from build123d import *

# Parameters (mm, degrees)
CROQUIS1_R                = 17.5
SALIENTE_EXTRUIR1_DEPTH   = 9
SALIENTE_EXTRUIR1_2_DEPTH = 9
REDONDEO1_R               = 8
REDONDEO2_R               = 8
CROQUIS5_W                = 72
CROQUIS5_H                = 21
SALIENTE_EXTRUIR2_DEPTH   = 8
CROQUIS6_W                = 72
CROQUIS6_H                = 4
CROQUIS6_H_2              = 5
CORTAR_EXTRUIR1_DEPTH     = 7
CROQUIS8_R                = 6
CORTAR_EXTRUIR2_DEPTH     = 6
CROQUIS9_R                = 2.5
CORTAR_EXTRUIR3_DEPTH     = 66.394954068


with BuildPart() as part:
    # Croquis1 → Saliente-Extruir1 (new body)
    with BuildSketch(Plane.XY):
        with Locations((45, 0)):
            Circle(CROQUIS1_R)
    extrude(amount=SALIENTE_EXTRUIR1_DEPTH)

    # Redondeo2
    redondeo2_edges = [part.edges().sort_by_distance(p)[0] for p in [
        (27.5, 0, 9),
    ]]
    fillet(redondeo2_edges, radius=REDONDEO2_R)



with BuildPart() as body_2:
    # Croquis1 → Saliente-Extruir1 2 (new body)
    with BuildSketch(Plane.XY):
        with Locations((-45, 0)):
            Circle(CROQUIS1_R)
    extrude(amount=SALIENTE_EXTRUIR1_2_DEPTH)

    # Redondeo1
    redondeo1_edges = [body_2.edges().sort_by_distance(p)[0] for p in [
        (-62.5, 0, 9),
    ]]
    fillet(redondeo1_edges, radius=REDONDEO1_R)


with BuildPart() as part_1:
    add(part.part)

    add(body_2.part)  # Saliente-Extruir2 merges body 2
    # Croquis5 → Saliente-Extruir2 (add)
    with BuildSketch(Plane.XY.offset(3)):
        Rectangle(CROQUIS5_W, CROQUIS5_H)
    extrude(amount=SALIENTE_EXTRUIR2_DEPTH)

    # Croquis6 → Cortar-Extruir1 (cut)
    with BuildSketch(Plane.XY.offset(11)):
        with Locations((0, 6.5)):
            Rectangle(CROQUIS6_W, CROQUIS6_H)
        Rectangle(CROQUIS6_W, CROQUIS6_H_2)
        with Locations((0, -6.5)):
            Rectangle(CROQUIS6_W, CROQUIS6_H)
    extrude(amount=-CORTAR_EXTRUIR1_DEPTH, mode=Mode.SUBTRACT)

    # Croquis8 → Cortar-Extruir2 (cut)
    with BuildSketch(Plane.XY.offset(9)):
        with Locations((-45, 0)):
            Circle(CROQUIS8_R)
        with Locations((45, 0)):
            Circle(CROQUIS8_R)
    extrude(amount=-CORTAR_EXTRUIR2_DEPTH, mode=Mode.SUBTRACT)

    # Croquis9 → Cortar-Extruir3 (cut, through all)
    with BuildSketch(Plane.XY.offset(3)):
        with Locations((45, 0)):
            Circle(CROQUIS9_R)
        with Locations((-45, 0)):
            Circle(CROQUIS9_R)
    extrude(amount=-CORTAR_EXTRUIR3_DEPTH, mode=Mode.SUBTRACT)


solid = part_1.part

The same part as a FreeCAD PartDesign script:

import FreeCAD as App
import Part
import Sketcher
from FreeCAD import Vector
Q = App.Units.Quantity


def edges_at(feature, points):
    """Names of the edges that pass closest to the given points."""
    edges = feature.Shape.Edges
    near = lambda p: min(range(len(edges)), key=lambda i: edges[i].distToShape(Part.Vertex(*p))[0])
    return sorted({f"Edge{near(p) + 1}" for p in points})

doc = App.newDocument("Part")
body = doc.addObject("PartDesign::Body", "Body")

sketch1 = doc.addObject("Sketcher::SketchObject", "Sketch")
body.addObject(sketch1)
sketch1.AttachmentSupport = (doc.XY_Plane, [""])
sketch1.MapMode = "FlatFace"
sketch1.addGeometry(Part.Circle(Vector(45, 0, 0), Vector(0, 0, 1), 18), False)
sketch1.addConstraint([
    Sketcher.Constraint("PointOnObject", 0, 3, -1),
    Sketcher.Constraint("Diameter", 0, Q("35 mm")),
    Sketcher.Constraint("DistanceX", -1, 1, 0, 3, Q("45 mm")),
])
pad1 = doc.addObject("PartDesign::Pad", "Pad")
body.addObject(pad1)
pad1.Profile = sketch1
pad1.Length = 9
doc.recompute()

fillet = doc.addObject("PartDesign::Fillet", "Fillet")
body.addObject(fillet)
fillet.Base = (pad1, edges_at(pad1, [(27.5, 0, 9)]))
fillet.Radius = 8
body2 = doc.addObject("PartDesign::Body", "Body001")

sketch2 = doc.addObject("Sketcher::SketchObject", "Sketch001")
body2.addObject(sketch2)
sketch2.AttachmentSupport = (doc.getObject("XY_Plane001"), [""])
sketch2.MapMode = "FlatFace"
sketch2.addGeometry(Part.Circle(Vector(-45, 0, 0), Vector(0, 0, 1), 18), False)
sketch2.addConstraint([
    Sketcher.Constraint("PointOnObject", 0, 3, -1),
    Sketcher.Constraint("Diameter", 0, Q("35 mm")),
    Sketcher.Constraint("DistanceX", 0, 3, -1, 1, Q("45 mm")),
])
pad2 = doc.addObject("PartDesign::Pad", "Pad001")
body2.addObject(pad2)
pad2.Profile = sketch2
pad2.Length = 9
doc.recompute()

fillet2 = doc.addObject("PartDesign::Fillet", "Fillet001")
body2.addObject(fillet2)
fillet2.Base = (pad2, edges_at(pad2, [(-62.5, 0, 9)]))
fillet2.Radius = 8
body.AllowCompound = True
doc.recompute()

boolean = doc.addObject("PartDesign::Boolean", "Boolean")
body.addObject(boolean)
boolean.Type = "Fuse"
boolean.addObjects([body2])

sketch3 = doc.addObject("Sketcher::SketchObject", "Sketch002")
body.addObject(sketch3)
sketch3.AttachmentSupport = (doc.XY_Plane, [""])
sketch3.MapMode = "FlatFace"
sketch3.AttachmentOffset = App.Placement(Vector(0, 0, 3), App.Rotation())
sketch3.addGeometry([
    Part.LineSegment(Vector(-36, 10, 0), Vector(-36, -10, 0)),
    Part.LineSegment(Vector(-36, -10, 0), Vector(36, -10, 0)),
    Part.LineSegment(Vector(36, -10, 0), Vector(36, 10, 0)),
    Part.LineSegment(Vector(36, 10, 0), Vector(-36, 10, 0)),
], False)
sketch3.addConstraint([
    Sketcher.Constraint("Coincident", 0, 2, 1, 1),
    Sketcher.Constraint("Coincident", 1, 2, 2, 1),
    Sketcher.Constraint("Coincident", 2, 2, 3, 1),
    Sketcher.Constraint("Coincident", 3, 2, 0, 1),
    Sketcher.Constraint("Vertical", 0),
    Sketcher.Constraint("Horizontal", 1),
    Sketcher.Constraint("Vertical", 2),
    Sketcher.Constraint("Horizontal", 3),
    Sketcher.Constraint("Symmetric", 0, 2, 2, 2, -1, 1),
    Sketcher.Constraint("DistanceX", 1, 1, 1, 2, Q("72 mm")),
    Sketcher.Constraint("DistanceY", 0, 2, 0, 1, Q("21 mm")),
])
pad3 = doc.addObject("PartDesign::Pad", "Pad002")
body.addObject(pad3)
pad3.Profile = sketch3
pad3.Length = 8

sketch4 = doc.addObject("Sketcher::SketchObject", "Sketch003")
body.addObject(sketch4)
sketch4.AttachmentSupport = (doc.XY_Plane, [""])
sketch4.MapMode = "FlatFace"
sketch4.AttachmentOffset = App.Placement(Vector(0, 0, 11), App.Rotation())
sketch4.addGeometry([
    Part.LineSegment(Vector(-36, 8.5, 0), Vector(-36, 4.5, 0)),
    Part.LineSegment(Vector(-36, 4.5, 0), Vector(36, 4.5, 0)),
    Part.LineSegment(Vector(36, 4.5, 0), Vector(36, 8.5, 0)),
    Part.LineSegment(Vector(36, 8.5, 0), Vector(-36, 8.5, 0)),
    Part.LineSegment(Vector(-36, 2.5, 0), Vector(-36, -2.5, 0)),
    Part.LineSegment(Vector(-36, -2.5, 0), Vector(36, -2.5, 0)),
    Part.LineSegment(Vector(36, -2.5, 0), Vector(36, 2.5, 0)),
    Part.LineSegment(Vector(36, 2.5, 0), Vector(-36, 2.5, 0)),
    Part.LineSegment(Vector(-36, -4.5, 0), Vector(-36, -8.5, 0)),
    Part.LineSegment(Vector(-36, -8.5, 0), Vector(36, -8.5, 0)),
    Part.LineSegment(Vector(36, -8.5, 0), Vector(36, -4.5, 0)),
    Part.LineSegment(Vector(36, -4.5, 0), Vector(-36, -4.5, 0)),
], False)
sketch4.addConstraint([
    Sketcher.Constraint("Coincident", 0, 2, 1, 1),
    Sketcher.Constraint("Coincident", 1, 2, 2, 1),
    Sketcher.Constraint("Coincident", 2, 2, 3, 1),
    Sketcher.Constraint("Coincident", 3, 2, 0, 1),
    Sketcher.Constraint("Coincident", 4, 2, 5, 1),
    Sketcher.Constraint("Coincident", 5, 2, 6, 1),
    Sketcher.Constraint("Coincident", 6, 2, 7, 1),
    Sketcher.Constraint("Coincident", 7, 2, 4, 1),
    Sketcher.Constraint("Coincident", 8, 2, 9, 1),
    Sketcher.Constraint("Coincident", 9, 2, 10, 1),
    Sketcher.Constraint("Coincident", 10, 2, 11, 1),
    Sketcher.Constraint("Coincident", 11, 2, 8, 1),
    Sketcher.Constraint("Vertical", 0),
    Sketcher.Constraint("Horizontal", 1),
    Sketcher.Constraint("Vertical", 2),
    Sketcher.Constraint("Horizontal", 3),
    Sketcher.Constraint("Vertical", 4),
    Sketcher.Constraint("Horizontal", 5),
    Sketcher.Constraint("Vertical", 6),
    Sketcher.Constraint("Horizontal", 7),
    Sketcher.Constraint("Vertical", 8),
    Sketcher.Constraint("Horizontal", 9),
    Sketcher.Constraint("Vertical", 10),
    Sketcher.Constraint("Horizontal", 11),
    Sketcher.Constraint("Symmetric", 4, 2, 6, 2, -1, 1),
    Sketcher.Constraint("Symmetric", 2, 2, 8, 2, -1, 1),
    Sketcher.Constraint("Symmetric", 0, 2, 10, 2, -1, 1),
    Sketcher.Constraint("Vertical", 3, 2, 4, 2),
    Sketcher.Constraint("Vertical", 2, 2, 5, 2),
    Sketcher.Constraint("DistanceX", 1, 1, 1, 2, Q("72 mm")),
    Sketcher.Constraint("DistanceY", 0, 2, 0, 1, Q("4 mm")),
    Sketcher.Constraint("DistanceY", 4, 2, 4, 1, Q("5 mm")),
    Sketcher.Constraint("DistanceY", 4, 2, 0, 2, Q("7 mm")),
])
pocket1 = doc.addObject("PartDesign::Pocket", "Pocket")
body.addObject(pocket1)
pocket1.Profile = sketch4
pocket1.Length = 7

sketch5 = doc.addObject("Sketcher::SketchObject", "Sketch004")
body.addObject(sketch5)
sketch5.AttachmentSupport = (doc.XY_Plane, [""])
sketch5.MapMode = "FlatFace"
sketch5.AttachmentOffset = App.Placement(Vector(0, 0, 9), App.Rotation())
sketch5.addGeometry([
    Part.Circle(Vector(-45, 0, 0), Vector(0, 0, 1), 6),
    Part.Circle(Vector(45, 0, 0), Vector(0, 0, 1), 6),
], False)
sketch5.addConstraint([
    Sketcher.Constraint("Equal", 0, 1),
    Sketcher.Constraint("Symmetric", 0, 3, 1, 3, -1, 1),
    Sketcher.Constraint("PointOnObject", 0, 3, -1),
    Sketcher.Constraint("Diameter", 0, Q("12 mm")),
    Sketcher.Constraint("DistanceX", 0, 3, -1, 1, Q("45 mm")),
])
pocket2 = doc.addObject("PartDesign::Pocket", "Pocket001")
body.addObject(pocket2)
pocket2.Profile = sketch5
pocket2.Length = 6

sketch6 = doc.addObject("Sketcher::SketchObject", "Sketch005")
body.addObject(sketch6)
sketch6.AttachmentSupport = (doc.XY_Plane, [""])
sketch6.MapMode = "FlatFace"
sketch6.AttachmentOffset = App.Placement(Vector(0, 0, 3), App.Rotation())
sketch6.addGeometry([
    Part.Circle(Vector(45, 0, 0), Vector(0, 0, 1), 2.5),
    Part.Circle(Vector(-45, 0, 0), Vector(0, 0, 1), 2.5),
], False)
sketch6.addConstraint([
    Sketcher.Constraint("Equal", 0, 1),
    Sketcher.Constraint("Symmetric", 0, 3, 1, 3, -1, 1),
    Sketcher.Constraint("PointOnObject", 0, 3, -1),
    Sketcher.Constraint("Diameter", 0, Q("5 mm")),
    Sketcher.Constraint("DistanceX", -1, 1, 0, 3, Q("45 mm")),
])
pocket3 = doc.addObject("PartDesign::Pocket", "Pocket002")
body.addObject(pocket3)
pocket3.Profile = sketch6
pocket3.Type = "ThroughAll"

doc.recompute()
